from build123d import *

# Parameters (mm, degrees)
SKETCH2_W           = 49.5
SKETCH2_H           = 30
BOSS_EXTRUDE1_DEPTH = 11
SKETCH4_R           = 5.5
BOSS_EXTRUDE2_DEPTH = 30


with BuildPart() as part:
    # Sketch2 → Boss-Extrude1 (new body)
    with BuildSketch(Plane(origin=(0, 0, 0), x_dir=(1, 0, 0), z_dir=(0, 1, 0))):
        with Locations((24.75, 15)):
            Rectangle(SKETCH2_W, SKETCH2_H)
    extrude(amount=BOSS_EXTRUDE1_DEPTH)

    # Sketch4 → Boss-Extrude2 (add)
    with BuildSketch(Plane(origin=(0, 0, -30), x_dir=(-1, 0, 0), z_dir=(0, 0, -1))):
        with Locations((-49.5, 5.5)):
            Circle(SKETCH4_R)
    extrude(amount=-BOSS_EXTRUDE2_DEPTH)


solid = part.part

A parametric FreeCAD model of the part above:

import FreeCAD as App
import Part
import Sketcher

V = App.Vector

doc = App.newDocument("Part")
body = doc.addObject("PartDesign::Body", "Body")

# Sketch on XZ plane
sketch1 = body.newObject("Sketcher::SketchObject", "Sketch")
sketch1.AttachmentSupport = (doc.getObject("XZ_Plane"), [""])
sketch1.MapMode = "FlatFace"
sketch1.addGeometry([
    Part.LineSegment(V(0, -30, 0), V(0, 0, 0)),
    Part.LineSegment(V(0, 0, 0), V(50, 0, 0)),
    Part.LineSegment(V(50, 0, 0), V(50, -30, 0)),
    Part.LineSegment(V(50, -30, 0), V(0, -30, 0)),
], False)
sketch1.addConstraint([
    Sketcher.Constraint("Coincident", 0, 2, 1, 1),
    Sketcher.Constraint("Coincident", 1, 2, 2, 1),
    Sketcher.Constraint("Coincident", 2, 2, 3, 1),
    Sketcher.Constraint("Coincident", 3, 2, 0, 1),
    Sketcher.Constraint("Vertical", 0),
    Sketcher.Constraint("Horizontal", 1),
    Sketcher.Constraint("Vertical", 2),
    Sketcher.Constraint("Horizontal", 3),
    Sketcher.Constraint("Coincident", 0, 2, -1, 1),
    Sketcher.Constraint("DistanceY", 0, 1, 0, 2, 30.0),
    Sketcher.Constraint("DistanceX", 1, 1, 1, 2, 49.5),
])
pad1 = body.newObject("PartDesign::Pad", "Pad")
pad1.Profile = sketch1
pad1.Length = 11
pad1.Reversed = True

# Sketch on XY plane
sketch2 = body.newObject("Sketcher::SketchObject", "Sketch001")
sketch2.AttachmentSupport = (doc.getObject("XY_Plane"), [""])
sketch2.MapMode = "FlatFace"
sketch2.AttachmentOffset = App.Placement(V(0, 0, -30), App.Rotation())
sketch2.addGeometry(Part.Circle(V(50, 6, 0), V(0, 0, 1), 6), False)
sketch2.addConstraint([
    Sketcher.Constraint("Diameter", 0, 11.0),
    Sketcher.Constraint("DistanceX", -1, 1, 0, 3, 49.5),
    Sketcher.Constraint("DistanceY", -1, 1, 0, 3, 5.5),
])
pad2 = body.newObject("PartDesign::Pad", "Pad001")
pad2.Profile = sketch2
pad2.Length = 30

doc.recompute()
